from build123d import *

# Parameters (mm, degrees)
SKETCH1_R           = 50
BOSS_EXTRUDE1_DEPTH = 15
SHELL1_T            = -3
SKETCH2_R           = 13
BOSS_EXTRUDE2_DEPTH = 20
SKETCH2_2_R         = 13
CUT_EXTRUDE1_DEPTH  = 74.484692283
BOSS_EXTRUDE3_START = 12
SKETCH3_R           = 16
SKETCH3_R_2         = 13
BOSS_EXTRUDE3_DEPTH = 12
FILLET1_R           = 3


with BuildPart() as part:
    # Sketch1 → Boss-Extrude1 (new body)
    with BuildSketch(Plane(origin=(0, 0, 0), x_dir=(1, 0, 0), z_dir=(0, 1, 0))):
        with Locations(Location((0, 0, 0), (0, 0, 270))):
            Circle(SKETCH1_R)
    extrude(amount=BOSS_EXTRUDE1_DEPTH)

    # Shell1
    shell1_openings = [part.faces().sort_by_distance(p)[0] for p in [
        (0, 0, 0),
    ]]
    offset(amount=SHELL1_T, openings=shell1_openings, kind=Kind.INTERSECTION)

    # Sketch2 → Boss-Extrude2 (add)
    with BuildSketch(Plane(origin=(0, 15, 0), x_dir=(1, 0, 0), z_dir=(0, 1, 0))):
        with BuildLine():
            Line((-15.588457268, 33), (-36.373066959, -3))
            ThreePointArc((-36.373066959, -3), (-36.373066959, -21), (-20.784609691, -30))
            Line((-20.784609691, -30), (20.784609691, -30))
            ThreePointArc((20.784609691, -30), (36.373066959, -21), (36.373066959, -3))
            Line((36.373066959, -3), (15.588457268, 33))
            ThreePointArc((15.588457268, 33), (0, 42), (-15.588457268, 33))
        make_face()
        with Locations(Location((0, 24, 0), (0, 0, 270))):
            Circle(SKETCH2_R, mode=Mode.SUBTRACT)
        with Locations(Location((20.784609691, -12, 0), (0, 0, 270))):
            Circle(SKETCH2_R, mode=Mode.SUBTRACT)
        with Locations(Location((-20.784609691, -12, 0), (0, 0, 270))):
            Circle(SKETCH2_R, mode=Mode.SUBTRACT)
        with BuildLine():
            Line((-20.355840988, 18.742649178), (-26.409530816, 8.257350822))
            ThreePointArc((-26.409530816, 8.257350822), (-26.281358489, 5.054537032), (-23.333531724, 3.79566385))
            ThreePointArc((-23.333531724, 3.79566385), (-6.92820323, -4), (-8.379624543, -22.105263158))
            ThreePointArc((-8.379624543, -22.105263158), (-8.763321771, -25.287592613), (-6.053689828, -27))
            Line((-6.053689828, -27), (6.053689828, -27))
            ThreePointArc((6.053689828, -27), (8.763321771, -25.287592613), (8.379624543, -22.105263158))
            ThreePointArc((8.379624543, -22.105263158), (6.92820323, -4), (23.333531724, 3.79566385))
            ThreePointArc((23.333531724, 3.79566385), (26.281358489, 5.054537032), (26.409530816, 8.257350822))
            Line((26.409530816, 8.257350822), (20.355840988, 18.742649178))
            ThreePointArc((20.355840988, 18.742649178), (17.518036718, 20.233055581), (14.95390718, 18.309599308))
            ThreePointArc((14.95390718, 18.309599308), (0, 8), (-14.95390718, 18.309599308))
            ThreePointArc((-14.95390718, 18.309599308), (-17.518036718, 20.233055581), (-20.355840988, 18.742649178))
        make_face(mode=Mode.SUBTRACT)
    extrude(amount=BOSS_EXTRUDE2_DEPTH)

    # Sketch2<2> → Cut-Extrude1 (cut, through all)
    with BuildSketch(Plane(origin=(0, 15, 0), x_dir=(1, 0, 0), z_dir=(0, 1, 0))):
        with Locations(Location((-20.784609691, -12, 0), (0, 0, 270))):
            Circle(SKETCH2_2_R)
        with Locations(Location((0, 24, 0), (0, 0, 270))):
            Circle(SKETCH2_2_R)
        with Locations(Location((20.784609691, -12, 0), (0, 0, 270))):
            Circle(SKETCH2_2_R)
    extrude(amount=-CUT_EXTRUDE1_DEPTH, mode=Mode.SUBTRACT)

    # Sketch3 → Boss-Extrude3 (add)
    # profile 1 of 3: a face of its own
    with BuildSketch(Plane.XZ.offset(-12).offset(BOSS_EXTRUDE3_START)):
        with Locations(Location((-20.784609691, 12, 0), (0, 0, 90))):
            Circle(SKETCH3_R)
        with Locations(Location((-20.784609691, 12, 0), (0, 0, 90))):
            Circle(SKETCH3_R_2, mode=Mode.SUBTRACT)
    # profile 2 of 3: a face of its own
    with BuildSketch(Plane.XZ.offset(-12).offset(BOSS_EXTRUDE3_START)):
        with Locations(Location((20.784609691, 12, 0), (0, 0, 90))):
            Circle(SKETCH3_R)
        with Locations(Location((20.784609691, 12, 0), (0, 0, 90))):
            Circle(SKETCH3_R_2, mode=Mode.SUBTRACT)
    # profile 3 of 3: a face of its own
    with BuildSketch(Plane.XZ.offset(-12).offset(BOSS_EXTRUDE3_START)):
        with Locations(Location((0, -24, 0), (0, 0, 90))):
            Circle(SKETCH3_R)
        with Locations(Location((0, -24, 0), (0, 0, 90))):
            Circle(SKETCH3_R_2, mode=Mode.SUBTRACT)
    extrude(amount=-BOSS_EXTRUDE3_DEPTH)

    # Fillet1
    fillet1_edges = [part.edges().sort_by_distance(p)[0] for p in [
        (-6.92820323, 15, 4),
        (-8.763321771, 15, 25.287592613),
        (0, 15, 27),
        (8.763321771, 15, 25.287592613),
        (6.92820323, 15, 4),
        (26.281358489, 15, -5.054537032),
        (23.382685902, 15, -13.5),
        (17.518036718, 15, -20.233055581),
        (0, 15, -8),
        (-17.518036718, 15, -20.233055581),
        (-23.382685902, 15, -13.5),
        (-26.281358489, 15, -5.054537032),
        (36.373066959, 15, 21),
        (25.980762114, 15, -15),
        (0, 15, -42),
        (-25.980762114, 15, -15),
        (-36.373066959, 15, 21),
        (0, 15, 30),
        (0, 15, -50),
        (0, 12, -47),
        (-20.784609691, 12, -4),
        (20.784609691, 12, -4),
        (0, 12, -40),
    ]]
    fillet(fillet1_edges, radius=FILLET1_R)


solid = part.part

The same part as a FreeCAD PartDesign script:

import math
import FreeCAD as App
import Part
import Sketcher
from FreeCAD import Vector
Q = App.Units.Quantity


def edges_at(feature, points):
    """Names of the edges that pass closest to the given points."""
    edges = feature.Shape.Edges
    near = lambda p: min(range(len(edges)), key=lambda i: edges[i].distToShape(Part.Vertex(*p))[0])
    return sorted({f"Edge{near(p) + 1}" for p in points})


def faces_at(feature, points):
    """Names of the faces that lie closest to the given points."""
    faces = feature.Shape.Faces
    near = lambda p: min(range(len(faces)), key=lambda i: faces[i].distToShape(Part.Vertex(*p))[0])
    return sorted({f"Face{near(p) + 1}" for p in points})

doc = App.newDocument("Part")
params = doc.addObject("Spreadsheet::Sheet", "Params")
for row, (alias, value) in enumerate([
    ("sketch1_diameter", "100 mm"),
    ("pad1_length", "15 mm"),
    ("thickness_wall", "3 mm"),
    ("sketch2_diameter", "26 mm"),
    ("sketch2_radius", "18 mm"),
    ("sketch2_radius2", "3 mm"),
    ("sketch2_radius3", "16 mm"),
    ("pad2_length", "20 mm"),
    ("sketch3_diameter", "26 mm"),
    ("sketch4_diameter", "32 mm"),
    ("sketch4_diameter2", "26 mm"),
    ("pad3_length", "12 mm"),
    ("fillet_radius", "3 mm"),
], start=1):
    params.set(f"A{row}", alias)
    params.set(f"B{row}", "=" + value)
    params.setAlias(f"B{row}", alias)

body = doc.addObject("PartDesign::Body", "Body")

# Sketch on XZ plane
sketch1 = doc.addObject("Sketcher::SketchObject", "Sketch")
body.addObject(sketch1)
sketch1.AttachmentSupport = (doc.XZ_Plane, [""])
sketch1.MapMode = "FlatFace"
sketch1.addGeometry(Part.Circle(Vector(0, 0, 0), Vector(0, 0, 1), 50), False)
sketch1.addConstraint(Sketcher.Constraint("Coincident", 0, 3, -1, 1))
sketch1.addConstraint(Sketcher.Constraint("Diameter", 0, 100.0))
sketch1.setExpression("Constraints[1]", "Params.sketch1_diameter")
pad1 = doc.addObject("PartDesign::Pad", "Pad")
body.addObject(pad1)
pad1.Profile = sketch1
pad1.setExpression("Length", "Params.pad1_length")
pad1.Reversed = True
doc.recompute()

thickness = doc.addObject("PartDesign::Thickness", "Thickness")
body.addObject(thickness)
thickness.Base = (pad1, faces_at(pad1, [(0, 0, 0)]))
thickness.setExpression("Value", "Params.thickness_wall")
thickness.Reversed = True
thickness.Join = "Intersection"

# Sketch on XZ plane
sketch2 = doc.addObject("Sketcher::SketchObject", "Sketch001")
body.addObject(sketch2)
sketch2.AttachmentSupport = (doc.XZ_Plane, [""])
sketch2.MapMode = "FlatFace"
sketch2.AttachmentOffset = App.Placement(Vector(0, 0, -15), App.Rotation())
sketch2.addGeometry(Part.LineSegment(Vector(-15.6, -33, 0), Vector(-36.4, 3, 0)), False)
sketch2.addGeometry(Part.ArcOfCircle(Part.Circle(Vector(-20.8, 12, 0), Vector(0, 0, 1), 18), math.radians(90), math.radians(210)), False)
sketch2.addGeometry(Part.LineSegment(Vector(-20.8, 30, 0), Vector(20.8, 30, 0)), False)
sketch2.addGeometry(Part.ArcOfCircle(Part.Circle(Vector(20.8, 12, 0), Vector(0, 0, 1), 18), math.radians(-30), math.radians(90)), False)
sketch2.addGeometry(Part.LineSegment(Vector(36.4, 3, 0), Vector(15.6, -33, 0)), False)
sketch2.addGeometry(Part.ArcOfCircle(Part.Circle(Vector(0, -24, 0), Vector(0, 0, 1), 18), math.radians(-150), math.radians(-30)), False)
sketch2.addGeometry(Part.Circle(Vector(-20.8, 12, 0), Vector(0, 0, 1), 13), False)
sketch2.addGeometry(Part.Circle(Vector(20.8, 12, 0), Vector(0, 0, 1), 13), False)
sketch2.addGeometry(Part.LineSegment(Vector(-26.4, -8.3, 0), Vector(-20.4, -18.7, 0)), False)
sketch2.addGeometry(Part.ArcOfCircle(Part.Circle(Vector(-17.8, -17.2, 0), Vector(0, 0, 1), 3), math.radians(-150), math.radians(-21)), False)
sketch2.addGeometry(Part.ArcOfCircle(Part.Circle(Vector(0, -24, 0), Vector(0, 0, 1), 16), math.radians(21), math.radians(159)), False)
sketch2.addGeometry(Part.ArcOfCircle(Part.Circle(Vector(17.8, -17.2, 0), Vector(0, 0, 1), 3), math.radians(-159), math.radians(-30)), False)
sketch2.addGeometry(Part.LineSegment(Vector(20.4, -18.7, 0), Vector(26.4, -8.3, 0)), False)
sketch2.addGeometry(Part.ArcOfCircle(Part.Circle(Vector(23.8, -6.8, 0), Vector(0, 0, 1), 3), math.radians(-30), math.radians(99)), False)
sketch2.addGeometry(Part.ArcOfCircle(Part.Circle(Vector(20.8, 12, 0), Vector(0, 0, 1), 16), math.radians(141), math.radians(279)), False)
sketch2.addGeometry(Part.ArcOfCircle(Part.Circle(Vector(6.1, 24, 0), Vector(0, 0, 1), 3), math.radians(-39), math.radians(90)), False)
sketch2.addGeometry(Part.LineSegment(Vector(6.1, 27, 0), Vector(-6.1, 27, 0)), False)
sketch2.addGeometry(Part.ArcOfCircle(Part.Circle(Vector(-6.1, 24, 0), Vector(0, 0, 1), 3), math.radians(90), math.radians(219)), False)
sketch2.addGeometry(Part.ArcOfCircle(Part.Circle(Vector(-20.8, 12, 0), Vector(0, 0, 1), 16), math.radians(-99), math.radians(39)), False)
sketch2.addGeometry(Part.ArcOfCircle(Part.Circle(Vector(-23.8, -6.8, 0), Vector(0, 0, 1), 3), math.radians(81), math.radians(210)), False)
sketch2.addGeometry(Part.Circle(Vector(0, -24, 0), Vector(0, 0, 1), 13), False)
sketch2.addConstraint(Sketcher.Constraint("Tangent", 0, 2, 1, 2))
sketch2.addConstraint(Sketcher.Constraint("Tangent", 1, 1, 2, 1))
sketch2.addConstraint(Sketcher.Constraint("Tangent", 2, 2, 3, 2))
sketch2.addConstraint(Sketcher.Constraint("Tangent", 3, 1, 4, 1))
sketch2.addConstraint(Sketcher.Constraint("Tangent", 4, 2, 5, 2))
sketch2.addConstraint(Sketcher.Constraint("Tangent", 5, 1, 0, 1))
sketch2.addConstraint(Sketcher.Constraint("Tangent", 8, 2, 9, 1))
sketch2.addConstraint(Sketcher.Constraint("Tangent", 9, 2, 10, 2))
sketch2.addConstraint(Sketcher.Constraint("Tangent", 10, 1, 11, 1))
sketch2.addConstraint(Sketcher.Constraint("Tangent", 11, 2, 12, 1))
sketch2.addConstraint(Sketcher.Constraint("Tangent", 12, 2, 13, 1))
sketch2.addConstraint(Sketcher.Constraint("Tangent", 13, 2, 14, 2))
sketch2.addConstraint(Sketcher.Constraint("Tangent", 14, 1, 15, 1))
sketch2.addConstraint(Sketcher.Constraint("Tangent", 15, 2, 16, 1))
sketch2.addConstraint(Sketcher.Constraint("Tangent", 16, 2, 17, 1))
sketch2.addConstraint(Sketcher.Constraint("Tangent", 17, 2, 18, 2))
sketch2.addConstraint(Sketcher.Constraint("Tangent", 18, 1, 19, 1))
sketch2.addConstraint(Sketcher.Constraint("Tangent", 19, 2, 8, 1))
sketch2.addConstraint(Sketcher.Constraint("Horizontal", 2))
sketch2.addConstraint(Sketcher.Constraint("Horizontal", 16))
sketch2.addConstraint(Sketcher.Constraint("Coincident", 6, 3, 1, 3))
sketch2.addConstraint(Sketcher.Constraint("Coincident", 7, 3, 3, 3))
sketch2.addConstraint(Sketcher.Constraint("Coincident", 10, 3, 5, 3))
sketch2.addConstraint(Sketcher.Constraint("Coincident", 14, 3, 3, 3))
sketch2.addConstraint(Sketcher.Constraint("Coincident", 18, 3, 1, 3))
sketch2.addConstraint(Sketcher.Constraint("Coincident", 20, 3, 5, 3))
sketch2.addConstraint(Sketcher.Constraint("Equal", 1, 3))
sketch2.addConstraint(Sketcher.Constraint("Equal", 3, 5))
sketch2.addConstraint(Sketcher.Constraint("Equal", 6, 7))
sketch2.addConstraint(Sketcher.Constraint("Equal", 9, 11))
sketch2.addConstraint(Sketcher.Constraint("Equal", 11, 13))
sketch2.addConstraint(Sketcher.Constraint("Equal", 10, 14))
sketch2.addConstraint(Sketcher.Constraint("Equal", 13, 15))
sketch2.addConstraint(Sketcher.Constraint("Equal", 15, 17))
sketch2.addConstraint(Sketcher.Constraint("Equal", 14, 18))
sketch2.addConstraint(Sketcher.Constraint("Equal", 17, 19))
sketch2.addConstraint(Sketcher.Constraint("Equal", 7, 20))
sketch2.addConstraint(Sketcher.Constraint("Symmetric", 9, 3, 11, 3, -2))
sketch2.addConstraint(Sketcher.Constraint("Symmetric", 13, 3, 19, 3, -2))
sketch2.addConstraint(Sketcher.Constraint("Parallel", 0, 8))
sketch2.addConstraint(Sketcher.Constraint("Diameter", 6, 26.0))
sketch2.addConstraint(Sketcher.Constraint("Radius", 1, 18.0))
sketch2.addConstraint(Sketcher.Constraint("Radius", 9, 3.0))
sketch2.addConstraint(Sketcher.Constraint("Radius", 10, 16.0))
sketch2.addConstraint(Sketcher.Constraint("Angle", 0, Q("120 deg")))
sketch2.addConstraint(Sketcher.Constraint("DistanceY", -1, 1, 1, 3, 12.0))
sketch2.addConstraint(Sketcher.Constraint("DistanceY", 5, 3, -1, 1, 24.0))
sketch2.addConstraint(Sketcher.Constraint("DistanceY", -1, 1, 15, 3, 24.0))
sketch2.addConstraint(Sketcher.Constraint("DistanceX", 13, 2, 12, 2, 3.075999))
sketch2.setExpression("Constraints[40]", "Params.sketch2_diameter")
sketch2.setExpression("Constraints[41]", "Params.sketch2_radius")
sketch2.setExpression("Constraints[42]", "Params.sketch2_radius2")
sketch2.setExpression("Constraints[43]", "Params.sketch2_radius3")
pad2 = doc.addObject("PartDesign::Pad", "Pad001")
body.addObject(pad2)
pad2.Profile = sketch2
pad2.setExpression("Length", "Params.pad2_length")
pad2.Reversed = True

# Sketch on XZ plane
sketch3 = doc.addObject("Sketcher::SketchObject", "Sketch002")
body.addObject(sketch3)
sketch3.AttachmentSupport = (doc.XZ_Plane, [""])
sketch3.MapMode = "FlatFace"
sketch3.AttachmentOffset = App.Placement(Vector(0, 0, -15), App.Rotation())
sketch3.addGeometry(Part.Circle(Vector(-21, 12, 0), Vector(0, 0, 1), 13), False)
sketch3.addGeometry(Part.Circle(Vector(0, -24, 0), Vector(0, 0, 1), 13), False)
sketch3.addGeometry(Part.Circle(Vector(21, 12, 0), Vector(0, 0, 1), 13), False)
sketch3.addConstraint(Sketcher.Constraint("Equal", 0, 1))
sketch3.addConstraint(Sketcher.Constraint("Equal", 1, 2))
sketch3.addConstraint(Sketcher.Constraint("Symmetric", 0, 3, 2, 3, -2))
sketch3.addConstraint(Sketcher.Constraint("PointOnObject", 1, 3, -2))
sketch3.addConstraint(Sketcher.Constraint("Diameter", 0, 26.0))
sketch3.addConstraint(Sketcher.Constraint("DistanceY", -1, 1, 0, 3, 12.0))
sketch3.addConstraint(Sketcher.Constraint("DistanceY", 1, 3, -1, 1, 24.0))
sketch3.addConstraint(Sketcher.Constraint("DistanceX", 0, 3, -1, 1, 20.78461))
sketch3.setExpression("Constraints[4]", "Params.sketch3_diameter")
pocket1 = doc.addObject("PartDesign::Pocket", "Pocket")
body.addObject(pocket1)
pocket1.Profile = sketch3
pocket1.Type = "ThroughAll"
pocket1.Reversed = True

# Sketch on XZ plane
sketch4 = doc.addObject("Sketcher::SketchObject", "Sketch003")
body.addObject(sketch4)
sketch4.AttachmentSupport = (doc.XZ_Plane, [""])
sketch4.MapMode = "FlatFace"
sketch4.addGeometry(Part.Circle(Vector(-21, 12, 0), Vector(0, 0, 1), 16), False)
sketch4.addGeometry(Part.Circle(Vector(-21, 12, 0), Vector(0, 0, 1), 13), False)
sketch4.addGeometry(Part.Circle(Vector(21, 12, 0), Vector(0, 0, 1), 16), False)
sketch4.addGeometry(Part.Circle(Vector(21, 12, 0), Vector(0, 0, 1), 13), False)
sketch4.addGeometry(Part.Circle(Vector(0, -24, 0), Vector(0, 0, 1), 16), False)
sketch4.addGeometry(Part.Circle(Vector(0, -24, 0), Vector(0, 0, 1), 13), False)
sketch4.addConstraint(Sketcher.Constraint("Coincident", 1, 3, 0, 3))
sketch4.addConstraint(Sketcher.Constraint("Coincident", 3, 3, 2, 3))
sketch4.addConstraint(Sketcher.Constraint("Coincident", 5, 3, 4, 3))
sketch4.addConstraint(Sketcher.Constraint("Equal", 0, 2))
sketch4.addConstraint(Sketcher.Constraint("Equal", 1, 3))
sketch4.addConstraint(Sketcher.Constraint("Equal", 2, 4))
sketch4.addConstraint(Sketcher.Constraint("Equal", 3, 5))
sketch4.addConstraint(Sketcher.Constraint("Symmetric", 0, 3, 2, 3, -2))
sketch4.addConstraint(Sketcher.Constraint("PointOnObject", 4, 3, -2))
sketch4.addConstraint(Sketcher.Constraint("Diameter", 0, 32.0))
sketch4.addConstraint(Sketcher.Constraint("Diameter", 1, 26.0))
sketch4.addConstraint(Sketcher.Constraint("DistanceY", -1, 1, 0, 3, 12.0))
sketch4.addConstraint(Sketcher.Constraint("DistanceY", 4, 3, -1, 1, 24.0))
sketch4.addConstraint(Sketcher.Constraint("DistanceX", 0, 3, -1, 1, 20.78461))
sketch4.setExpression("Constraints[9]", "Params.sketch4_diameter")
sketch4.setExpression("Constraints[10]", "Params.sketch4_diameter2")
pad3 = doc.addObject("PartDesign::Pad", "Pad002")
body.addObject(pad3)
pad3.Profile = sketch4
pad3.setExpression("Length", "Params.pad3_length")
pad3.Reversed = True
doc.recompute()

fillet = doc.addObject("PartDesign::Fillet", "Fillet")
body.addObject(fillet)
fillet.Base = (pad3, edges_at(pad3, [
    (-6.928, 15, 4),
    (-8.763, 15, 25.288),
    (0, 15, 27),
    (8.763, 15, 25.288),
    (6.928, 15, 4),
    (26.281, 15, -5.055),
    (23.383, 15, -13.5),
    (17.518, 15, -20.233),
    (0, 15, -8),
    (-17.518, 15, -20.233),
    (-23.383, 15, -13.5),
    (-26.281, 15, -5.055),
    (36.373, 15, 21),
    (25.981, 15, -15),
    (0, 15, -42),
    (-25.981, 15, -15),
    (-36.373, 15, 21),
    (0, 15, 30),
    (0, 15, -50),
    (0, 12, -47),
    (-20.785, 12, -4),
    (20.785, 12, -4),
    (0, 12, -40),
]))
fillet.setExpression("Radius", "Params.fillet_radius")

doc.recompute()
